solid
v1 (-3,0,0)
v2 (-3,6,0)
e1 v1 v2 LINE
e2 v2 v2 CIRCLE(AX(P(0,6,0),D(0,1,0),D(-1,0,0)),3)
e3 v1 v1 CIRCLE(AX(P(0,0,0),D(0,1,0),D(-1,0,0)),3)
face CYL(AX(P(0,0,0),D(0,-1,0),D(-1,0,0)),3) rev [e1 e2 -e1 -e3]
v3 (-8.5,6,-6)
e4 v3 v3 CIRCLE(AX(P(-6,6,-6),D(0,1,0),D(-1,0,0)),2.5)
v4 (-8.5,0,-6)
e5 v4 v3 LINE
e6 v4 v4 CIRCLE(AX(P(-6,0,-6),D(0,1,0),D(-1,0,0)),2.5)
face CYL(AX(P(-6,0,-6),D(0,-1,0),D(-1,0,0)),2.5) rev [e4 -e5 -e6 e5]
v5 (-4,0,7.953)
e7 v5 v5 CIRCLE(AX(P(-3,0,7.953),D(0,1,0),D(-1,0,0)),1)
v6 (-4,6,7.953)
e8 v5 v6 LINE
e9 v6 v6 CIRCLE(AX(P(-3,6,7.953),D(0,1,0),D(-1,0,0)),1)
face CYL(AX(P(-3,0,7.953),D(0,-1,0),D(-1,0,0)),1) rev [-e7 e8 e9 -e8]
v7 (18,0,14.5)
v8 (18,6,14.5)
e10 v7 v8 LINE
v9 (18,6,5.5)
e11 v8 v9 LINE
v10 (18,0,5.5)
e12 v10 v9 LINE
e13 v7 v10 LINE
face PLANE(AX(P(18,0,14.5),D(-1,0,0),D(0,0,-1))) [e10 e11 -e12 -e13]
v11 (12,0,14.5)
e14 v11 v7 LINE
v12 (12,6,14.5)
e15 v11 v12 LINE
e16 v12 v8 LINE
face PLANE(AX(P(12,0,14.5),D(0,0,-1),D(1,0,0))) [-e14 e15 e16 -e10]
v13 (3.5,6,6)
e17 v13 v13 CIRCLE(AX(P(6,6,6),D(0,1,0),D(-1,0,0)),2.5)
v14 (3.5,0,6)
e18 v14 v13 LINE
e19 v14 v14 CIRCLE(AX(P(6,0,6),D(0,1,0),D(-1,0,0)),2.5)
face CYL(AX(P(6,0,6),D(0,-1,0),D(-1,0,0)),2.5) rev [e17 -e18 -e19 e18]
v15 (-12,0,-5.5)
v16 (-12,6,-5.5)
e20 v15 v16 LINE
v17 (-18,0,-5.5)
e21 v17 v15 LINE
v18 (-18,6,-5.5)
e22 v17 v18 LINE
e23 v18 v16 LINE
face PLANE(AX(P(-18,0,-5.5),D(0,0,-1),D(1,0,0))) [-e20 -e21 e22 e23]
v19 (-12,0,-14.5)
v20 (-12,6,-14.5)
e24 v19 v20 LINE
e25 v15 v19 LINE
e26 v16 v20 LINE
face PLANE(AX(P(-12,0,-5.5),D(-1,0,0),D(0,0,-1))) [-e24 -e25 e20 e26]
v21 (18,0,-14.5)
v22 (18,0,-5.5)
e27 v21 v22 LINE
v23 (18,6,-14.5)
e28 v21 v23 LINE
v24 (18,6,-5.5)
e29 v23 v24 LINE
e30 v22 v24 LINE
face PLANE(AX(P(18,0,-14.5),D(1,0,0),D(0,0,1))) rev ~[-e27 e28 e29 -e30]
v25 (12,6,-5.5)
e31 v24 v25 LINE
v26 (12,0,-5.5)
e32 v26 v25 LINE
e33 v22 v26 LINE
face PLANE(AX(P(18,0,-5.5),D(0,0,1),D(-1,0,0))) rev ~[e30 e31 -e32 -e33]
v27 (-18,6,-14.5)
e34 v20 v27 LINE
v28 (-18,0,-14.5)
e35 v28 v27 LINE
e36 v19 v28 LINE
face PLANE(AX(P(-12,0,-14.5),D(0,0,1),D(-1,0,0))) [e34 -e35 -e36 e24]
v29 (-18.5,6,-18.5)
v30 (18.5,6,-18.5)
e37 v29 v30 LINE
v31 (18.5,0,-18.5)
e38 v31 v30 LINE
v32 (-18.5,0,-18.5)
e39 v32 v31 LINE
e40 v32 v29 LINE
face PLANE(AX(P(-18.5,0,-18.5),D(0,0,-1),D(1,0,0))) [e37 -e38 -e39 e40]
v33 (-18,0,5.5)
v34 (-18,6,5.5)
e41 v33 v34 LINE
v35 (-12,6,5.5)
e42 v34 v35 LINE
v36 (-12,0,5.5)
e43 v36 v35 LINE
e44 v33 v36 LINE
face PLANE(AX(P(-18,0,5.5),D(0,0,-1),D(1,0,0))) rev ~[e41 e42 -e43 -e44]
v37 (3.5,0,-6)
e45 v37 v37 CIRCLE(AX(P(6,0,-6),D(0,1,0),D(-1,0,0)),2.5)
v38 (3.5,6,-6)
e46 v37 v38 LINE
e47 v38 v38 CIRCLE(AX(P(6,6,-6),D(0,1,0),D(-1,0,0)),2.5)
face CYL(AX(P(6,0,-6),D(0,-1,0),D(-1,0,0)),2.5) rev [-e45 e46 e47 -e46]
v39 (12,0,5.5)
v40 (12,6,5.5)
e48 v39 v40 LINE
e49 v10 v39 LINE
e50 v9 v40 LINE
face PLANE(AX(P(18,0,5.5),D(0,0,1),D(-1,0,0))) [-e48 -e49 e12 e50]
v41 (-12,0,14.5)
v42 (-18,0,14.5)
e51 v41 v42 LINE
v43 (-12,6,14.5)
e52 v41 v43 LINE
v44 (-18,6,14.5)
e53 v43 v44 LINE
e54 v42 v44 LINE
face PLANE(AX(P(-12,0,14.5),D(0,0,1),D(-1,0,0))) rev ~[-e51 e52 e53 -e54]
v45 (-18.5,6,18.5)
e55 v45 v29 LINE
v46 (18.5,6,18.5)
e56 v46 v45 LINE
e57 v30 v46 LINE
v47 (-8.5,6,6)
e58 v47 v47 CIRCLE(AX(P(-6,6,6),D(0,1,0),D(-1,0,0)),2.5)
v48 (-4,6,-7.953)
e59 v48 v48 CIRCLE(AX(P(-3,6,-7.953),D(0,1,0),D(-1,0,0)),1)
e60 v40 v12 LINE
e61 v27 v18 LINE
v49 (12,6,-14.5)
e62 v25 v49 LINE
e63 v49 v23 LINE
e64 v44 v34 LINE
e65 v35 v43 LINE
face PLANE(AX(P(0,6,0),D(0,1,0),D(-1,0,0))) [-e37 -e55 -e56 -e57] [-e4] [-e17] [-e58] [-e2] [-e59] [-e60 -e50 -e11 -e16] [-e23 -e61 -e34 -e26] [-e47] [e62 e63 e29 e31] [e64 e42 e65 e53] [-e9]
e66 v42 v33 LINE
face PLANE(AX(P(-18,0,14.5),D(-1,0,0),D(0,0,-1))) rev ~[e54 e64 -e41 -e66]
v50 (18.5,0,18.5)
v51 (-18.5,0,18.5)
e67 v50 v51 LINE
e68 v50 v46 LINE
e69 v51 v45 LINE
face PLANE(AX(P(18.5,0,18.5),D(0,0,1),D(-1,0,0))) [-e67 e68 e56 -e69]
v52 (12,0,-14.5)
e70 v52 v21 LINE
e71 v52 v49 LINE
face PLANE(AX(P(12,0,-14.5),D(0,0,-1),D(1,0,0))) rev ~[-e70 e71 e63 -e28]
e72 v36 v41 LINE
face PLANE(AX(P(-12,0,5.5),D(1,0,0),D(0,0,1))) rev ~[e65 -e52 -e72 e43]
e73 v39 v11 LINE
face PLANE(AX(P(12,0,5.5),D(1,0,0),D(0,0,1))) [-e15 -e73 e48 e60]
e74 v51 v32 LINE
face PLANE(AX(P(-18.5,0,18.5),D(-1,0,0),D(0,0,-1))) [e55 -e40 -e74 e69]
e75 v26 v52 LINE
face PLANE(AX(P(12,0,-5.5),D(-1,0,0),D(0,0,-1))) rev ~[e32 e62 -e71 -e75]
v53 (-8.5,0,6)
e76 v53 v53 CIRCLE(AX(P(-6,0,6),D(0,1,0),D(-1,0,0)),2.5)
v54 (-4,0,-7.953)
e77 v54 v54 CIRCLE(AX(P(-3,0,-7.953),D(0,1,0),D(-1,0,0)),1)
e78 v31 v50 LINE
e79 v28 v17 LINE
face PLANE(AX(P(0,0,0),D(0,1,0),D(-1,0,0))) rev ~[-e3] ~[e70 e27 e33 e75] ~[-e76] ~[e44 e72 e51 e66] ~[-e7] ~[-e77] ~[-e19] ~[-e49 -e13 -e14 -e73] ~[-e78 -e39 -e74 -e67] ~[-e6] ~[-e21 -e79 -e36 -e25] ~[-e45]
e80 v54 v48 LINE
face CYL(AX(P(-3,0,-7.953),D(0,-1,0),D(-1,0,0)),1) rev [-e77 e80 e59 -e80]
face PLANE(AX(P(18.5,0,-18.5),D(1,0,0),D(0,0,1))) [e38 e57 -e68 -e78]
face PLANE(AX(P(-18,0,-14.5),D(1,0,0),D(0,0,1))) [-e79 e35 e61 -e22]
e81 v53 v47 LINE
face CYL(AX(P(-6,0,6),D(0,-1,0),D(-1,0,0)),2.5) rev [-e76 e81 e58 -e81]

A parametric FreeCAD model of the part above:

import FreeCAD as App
import Part
import Sketcher

doc = App.newDocument("Part")
body = doc.addObject("PartDesign::Body", "Body")

sketch1 = body.newObject("Sketcher::SketchObject", "Sketch")
sketch1.AttachmentSupport = (doc.getObject("XZ_Plane"), [""])
sketch1.MapMode = "FlatFace"
sketch1.addGeometry(Part.LineSegment(App.Vector(-18.5, 18.5, 0), App.Vector(18.5, 18.5, 0)), False)
sketch1.addGeometry(Part.LineSegment(App.Vector(18.5, 18.5, 0), App.Vector(18.5, -18.5, 0)), False)
sketch1.addGeometry(Part.LineSegment(App.Vector(18.5, -18.5, 0), App.Vector(-18.5, -18.5, 0)), False)
sketch1.addGeometry(Part.LineSegment(App.Vector(-18.5, -18.5, 0), App.Vector(-18.5, 18.5, 0)), False)
sketch1.addGeometry(Part.LineSegment(App.Vector(12, -5.5, 0), App.Vector(12, -14.5, 0)), False)
sketch1.addGeometry(Part.LineSegment(App.Vector(12, -14.5, 0), App.Vector(18, -14.5, 0)), False)
sketch1.addGeometry(Part.LineSegment(App.Vector(18, -14.5, 0), App.Vector(18, -5.5, 0)), False)
sketch1.addGeometry(Part.LineSegment(App.Vector(18, -5.5, 0), App.Vector(12, -5.5, 0)), False)
sketch1.addGeometry(Part.Circle(App.Vector(6, -6, 0), App.Vector(0, 0, 1), 2.5), False)
sketch1.addGeometry(Part.LineSegment(App.Vector(-18, -14.5, 0), App.Vector(-12, -14.5, 0)), False)
sketch1.addGeometry(Part.LineSegment(App.Vector(-12, -14.5, 0), App.Vector(-12, -5.5, 0)), False)
sketch1.addGeometry(Part.LineSegment(App.Vector(-12, -5.5, 0), App.Vector(-18, -5.5, 0)), False)
sketch1.addGeometry(Part.LineSegment(App.Vector(-18, -5.5, 0), App.Vector(-18, -14.5, 0)), False)
sketch1.addGeometry(Part.Circle(App.Vector(-3, -8, 0), App.Vector(0, 0, 1), 1), False)
sketch1.addGeometry(Part.Circle(App.Vector(-6, -6, 0), App.Vector(0, 0, 1), 2.5), False)
sketch1.addGeometry(Part.Circle(App.Vector(6, 6, 0), App.Vector(0, 0, 1), 2.5), False)
sketch1.addGeometry(Part.LineSegment(App.Vector(12, 14.5, 0), App.Vector(12, 5.5, 0)), False)
sketch1.addGeometry(Part.LineSegment(App.Vector(12, 5.5, 0), App.Vector(18, 5.5, 0)), False)
sketch1.addGeometry(Part.LineSegment(App.Vector(18, 5.5, 0), App.Vector(18, 14.5, 0)), False)
sketch1.addGeometry(Part.LineSegment(App.Vector(18, 14.5, 0), App.Vector(12, 14.5, 0)), False)
sketch1.addGeometry(Part.Circle(App.Vector(0, 0, 0), App.Vector(0, 0, 1), 3), False)
sketch1.addGeometry(Part.Circle(App.Vector(-3, 8, 0), App.Vector(0, 0, 1), 1), False)
sketch1.addGeometry(Part.Circle(App.Vector(-6, 6, 0), App.Vector(0, 0, 1), 2.5), False)
sketch1.addGeometry(Part.LineSegment(App.Vector(-12, 5.5, 0), App.Vector(-12, 14.5, 0)), False)
sketch1.addGeometry(Part.LineSegment(App.Vector(-12, 14.5, 0), App.Vector(-18, 14.5, 0)), False)
sketch1.addGeometry(Part.LineSegment(App.Vector(-18, 14.5, 0), App.Vector(-18, 5.5, 0)), False)
sketch1.addGeometry(Part.LineSegment(App.Vector(-18, 5.5, 0), App.Vector(-12, 5.5, 0)), False)
sketch1.addConstraint(Sketcher.Constraint("Coincident", 0, 2, 1, 1))
sketch1.addConstraint(Sketcher.Constraint("Coincident", 1, 2, 2, 1))
sketch1.addConstraint(Sketcher.Constraint("Coincident", 2, 2, 3, 1))
sketch1.addConstraint(Sketcher.Constraint("Coincident", 3, 2, 0, 1))
sketch1.addConstraint(Sketcher.Constraint("Coincident", 4, 2, 5, 1))
sketch1.addConstraint(Sketcher.Constraint("Coincident", 5, 2, 6, 1))
sketch1.addConstraint(Sketcher.Constraint("Coincident", 6, 2, 7, 1))
sketch1.addConstraint(Sketcher.Constraint("Coincident", 7, 2, 4, 1))
sketch1.addConstraint(Sketcher.Constraint("Coincident", 9, 2, 10, 1))
sketch1.addConstraint(Sketcher.Constraint("Coincident", 10, 2, 11, 1))
sketch1.addConstraint(Sketcher.Constraint("Coincident", 11, 2, 12, 1))
sketch1.addConstraint(Sketcher.Constraint("Coincident", 12, 2, 9, 1))
sketch1.addConstraint(Sketcher.Constraint("Coincident", 16, 2, 17, 1))
sketch1.addConstraint(Sketcher.Constraint("Coincident", 17, 2, 18, 1))
sketch1.addConstraint(Sketcher.Constraint("Coincident", 18, 2, 19, 1))
sketch1.addConstraint(Sketcher.Constraint("Coincident", 19, 2, 16, 1))
sketch1.addConstraint(Sketcher.Constraint("Coincident", 23, 2, 24, 1))
sketch1.addConstraint(Sketcher.Constraint("Coincident", 24, 2, 25, 1))
sketch1.addConstraint(Sketcher.Constraint("Coincident", 25, 2, 26, 1))
sketch1.addConstraint(Sketcher.Constraint("Coincident", 26, 2, 23, 1))
sketch1.addConstraint(Sketcher.Constraint("Horizontal", 0))
sketch1.addConstraint(Sketcher.Constraint("Vertical", 1))
sketch1.addConstraint(Sketcher.Constraint("Horizontal", 2))
sketch1.addConstraint(Sketcher.Constraint("Vertical", 3))
sketch1.addConstraint(Sketcher.Constraint("Vertical", 4))
sketch1.addConstraint(Sketcher.Constraint("Horizontal", 5))
sketch1.addConstraint(Sketcher.Constraint("Vertical", 6))
sketch1.addConstraint(Sketcher.Constraint("Horizontal", 7))
sketch1.addConstraint(Sketcher.Constraint("Horizontal", 9))
sketch1.addConstraint(Sketcher.Constraint("Vertical", 10))
sketch1.addConstraint(Sketcher.Constraint("Horizontal", 11))
sketch1.addConstraint(Sketcher.Constraint("Vertical", 12))
sketch1.addConstraint(Sketcher.Constraint("Vertical", 16))
sketch1.addConstraint(Sketcher.Constraint("Horizontal", 17))
sketch1.addConstraint(Sketcher.Constraint("Vertical", 18))
sketch1.addConstraint(Sketcher.Constraint("Horizontal", 19))
sketch1.addConstraint(Sketcher.Constraint("Vertical", 23))
sketch1.addConstraint(Sketcher.Constraint("Horizontal", 24))
sketch1.addConstraint(Sketcher.Constraint("Vertical", 25))
sketch1.addConstraint(Sketcher.Constraint("Horizontal", 26))
sketch1.addConstraint(Sketcher.Constraint("Coincident", 20, 3, -1, 1))
sketch1.addConstraint(Sketcher.Constraint("Equal", 8, 14))
sketch1.addConstraint(Sketcher.Constraint("Equal", 14, 15))
sketch1.addConstraint(Sketcher.Constraint("Equal", 13, 21))
sketch1.addConstraint(Sketcher.Constraint("Equal", 15, 22))
sketch1.addConstraint(Sketcher.Constraint("Symmetric", 14, 3, 15, 3, -1, 1))
sketch1.addConstraint(Sketcher.Constraint("Symmetric", 8, 3, 22, 3, -1, 1))
sketch1.addConstraint(Sketcher.Constraint("Symmetric", 0, 2, 2, 2, -1, 1))
sketch1.addConstraint(Sketcher.Constraint("Symmetric", 10, 2, 16, 2, -1, 1))
sketch1.addConstraint(Sketcher.Constraint("Symmetric", 12, 2, 18, 2, -1, 1))
sketch1.addConstraint(Sketcher.Constraint("Symmetric", 4, 2, 23, 2, -1, 1))
sketch1.addConstraint(Sketcher.Constraint("Symmetric", 6, 2, 25, 2, -1, 1))
sketch1.addConstraint(Sketcher.Constraint("Symmetric", 8, 3, 14, 3, -2))
sketch1.addConstraint(Sketcher.Constraint("Symmetric", 4, 2, 9, 2, -2))
sketch1.addConstraint(Sketcher.Constraint("Symmetric", 6, 2, 11, 2, -2))
sketch1.addConstraint(Sketcher.Constraint("Symmetric", 13, 3, 21, 3, -1))
sketch1.addConstraint(Sketcher.Constraint("Equal", 2, 1))
sketch1.addConstraint(Sketcher.Constraint("Diameter", 8, 5.0))
sketch1.addConstraint(Sketcher.Constraint("Diameter", 13, 2.0))
sketch1.addConstraint(Sketcher.Constraint("Diameter", 20, 6.0))
sketch1.addConstraint(Sketcher.Constraint("DistanceX", 0, 1, 0, 2, 37.0))
sketch1.addConstraint(Sketcher.Constraint("DistanceX", 5, 1, 5, 2, 6.0))
sketch1.addConstraint(Sketcher.Constraint("DistanceY", 4, 2, 4, 1, 9.0))
sketch1.addConstraint(Sketcher.Constraint("DistanceX", -1, 1, 8, 3, 6.0))
sketch1.addConstraint(Sketcher.Constraint("DistanceY", 8, 3, -1, 1, 6.0))
sketch1.addConstraint(Sketcher.Constraint("DistanceX", 13, 3, 8, 3, 9.0))
sketch1.addConstraint(Sketcher.Constraint("DistanceX", 8, 3, 4, 2, 6.0))
sketch1.addConstraint(Sketcher.Constraint("DistanceY", 4, 2, -1, 1, 14.5))
sketch1.addConstraint(Sketcher.Constraint("DistanceY", 13, 3, -1, 1, 7.953))
pad1 = body.newObject("PartDesign::Pad", "Pad")
pad1.Profile = sketch1
pad1.Length = 6
pad1.Reversed = True

doc.recompute()
